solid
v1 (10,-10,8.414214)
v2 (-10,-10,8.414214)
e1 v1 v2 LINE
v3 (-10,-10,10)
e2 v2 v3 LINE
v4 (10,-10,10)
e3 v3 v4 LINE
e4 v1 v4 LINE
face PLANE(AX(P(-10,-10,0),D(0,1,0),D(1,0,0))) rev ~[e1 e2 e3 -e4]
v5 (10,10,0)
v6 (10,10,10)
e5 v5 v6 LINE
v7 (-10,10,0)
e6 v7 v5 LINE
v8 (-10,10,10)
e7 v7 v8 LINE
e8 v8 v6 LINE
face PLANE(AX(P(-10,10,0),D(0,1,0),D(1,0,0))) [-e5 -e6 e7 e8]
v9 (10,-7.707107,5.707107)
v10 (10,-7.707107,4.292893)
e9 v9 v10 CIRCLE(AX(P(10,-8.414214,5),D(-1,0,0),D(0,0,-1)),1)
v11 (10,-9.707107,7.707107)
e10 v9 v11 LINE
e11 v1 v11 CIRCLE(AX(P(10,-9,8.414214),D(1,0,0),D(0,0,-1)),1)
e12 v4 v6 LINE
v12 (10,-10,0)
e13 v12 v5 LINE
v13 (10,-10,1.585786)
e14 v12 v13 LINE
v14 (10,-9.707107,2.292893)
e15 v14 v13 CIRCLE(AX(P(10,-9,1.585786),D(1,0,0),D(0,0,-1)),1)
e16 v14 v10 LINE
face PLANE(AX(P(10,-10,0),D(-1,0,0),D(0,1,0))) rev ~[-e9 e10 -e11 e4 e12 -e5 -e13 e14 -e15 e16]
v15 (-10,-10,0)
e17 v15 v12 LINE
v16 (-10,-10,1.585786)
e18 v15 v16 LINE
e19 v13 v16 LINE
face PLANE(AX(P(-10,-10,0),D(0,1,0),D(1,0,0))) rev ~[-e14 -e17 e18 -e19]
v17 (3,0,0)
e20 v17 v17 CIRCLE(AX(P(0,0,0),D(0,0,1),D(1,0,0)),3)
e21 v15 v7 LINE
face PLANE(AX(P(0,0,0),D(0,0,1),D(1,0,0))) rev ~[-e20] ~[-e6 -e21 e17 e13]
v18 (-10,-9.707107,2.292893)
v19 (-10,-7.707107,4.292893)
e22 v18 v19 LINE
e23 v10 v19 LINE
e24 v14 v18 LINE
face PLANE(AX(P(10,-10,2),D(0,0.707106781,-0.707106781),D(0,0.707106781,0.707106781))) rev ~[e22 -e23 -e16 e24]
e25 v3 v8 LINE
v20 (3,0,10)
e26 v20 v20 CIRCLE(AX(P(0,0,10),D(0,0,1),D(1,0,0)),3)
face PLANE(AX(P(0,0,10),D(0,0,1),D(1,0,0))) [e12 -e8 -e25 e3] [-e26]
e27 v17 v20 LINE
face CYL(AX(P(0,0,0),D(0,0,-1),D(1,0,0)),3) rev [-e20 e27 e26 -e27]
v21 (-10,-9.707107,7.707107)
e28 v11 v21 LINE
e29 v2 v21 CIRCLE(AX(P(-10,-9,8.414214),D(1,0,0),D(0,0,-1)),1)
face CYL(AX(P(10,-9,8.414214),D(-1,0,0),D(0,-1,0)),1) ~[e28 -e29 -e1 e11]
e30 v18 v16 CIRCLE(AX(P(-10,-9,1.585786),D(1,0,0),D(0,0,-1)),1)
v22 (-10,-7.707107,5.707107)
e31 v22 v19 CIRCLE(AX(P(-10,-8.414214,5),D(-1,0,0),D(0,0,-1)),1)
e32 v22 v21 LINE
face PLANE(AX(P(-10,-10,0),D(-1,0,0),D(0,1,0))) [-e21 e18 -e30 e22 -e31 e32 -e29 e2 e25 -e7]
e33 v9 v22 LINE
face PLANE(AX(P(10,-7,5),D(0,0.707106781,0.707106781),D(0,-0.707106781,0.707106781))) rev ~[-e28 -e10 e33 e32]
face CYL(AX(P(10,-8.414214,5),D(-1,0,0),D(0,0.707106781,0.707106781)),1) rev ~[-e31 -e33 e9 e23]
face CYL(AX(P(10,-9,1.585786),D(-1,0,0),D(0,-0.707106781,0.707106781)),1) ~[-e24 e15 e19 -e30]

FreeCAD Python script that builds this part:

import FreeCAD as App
import Part
import Sketcher

V = App.Vector
Q = App.Units.Quantity


def edges_at(feature, points):
    """Names of the edges that pass closest to the given points."""
    edges = feature.Shape.Edges
    near = lambda p: min(range(len(edges)), key=lambda i: edges[i].distToShape(Part.Vertex(*p))[0])
    return sorted({f"Edge{near(p) + 1}" for p in points})


def add_polygon(sketch, points):
    """Adds a closed chain of lines whose ends are joined by coincident constraints."""
    first, n = sketch.GeometryCount, len(points)
    for a, b in zip(points, points[1:] + points[:1]):
        sketch.addGeometry(Part.LineSegment(App.Vector(*a, 0), App.Vector(*b, 0)), False)
    for i in range(n):
        sketch.addConstraint(Sketcher.Constraint("Coincident", first + i, 2, first + (i + 1) % n, 1))

doc = App.newDocument("Part")
body = doc.addObject("PartDesign::Body", "Body")

sketch1 = doc.addObject("Sketcher::SketchObject", "Sketch")
body.addObject(sketch1)
sketch1.AttachmentSupport = (doc.XY_Plane, [""])
sketch1.MapMode = "FlatFace"
add_polygon(sketch1, [(-10, 10), (-10, -10), (10, -10), (10, 10)])
sketch1.addGeometry(Part.Circle(V(0, 0, 0), V(0, 0, 1), 3), False)
sketch1.addConstraint(Sketcher.Constraint("Vertical", 0))
sketch1.addConstraint(Sketcher.Constraint("Horizontal", 1))
sketch1.addConstraint(Sketcher.Constraint("Vertical", 2))
sketch1.addConstraint(Sketcher.Constraint("Horizontal", 3))
sketch1.addConstraint(Sketcher.Constraint("Coincident", 4, 3, -1, 1))
sketch1.addConstraint(Sketcher.Constraint("Symmetric", 0, 2, 2, 2, -1, 1))
sketch1.addConstraint(Sketcher.Constraint("Equal", 3, 0))
sketch1.addConstraint(Sketcher.Constraint("Diameter", 4, Q("6 mm")))
sketch1.addConstraint(Sketcher.Constraint("DistanceX", 1, 1, 1, 2, Q("20 mm")))
pad1 = doc.addObject("PartDesign::Pad", "Pad")
body.addObject(pad1)
pad1.Profile = sketch1
pad1.Length = 10

sketch2 = doc.addObject("Sketcher::SketchObject", "Sketch001")
body.addObject(sketch2)
sketch2.AttachmentSupport = (doc.YZ_Plane, [""])
sketch2.MapMode = "FlatFace"
sketch2.AttachmentOffset = App.Placement(V(0, 0, 10), App.Rotation())
add_polygon(sketch2, [(-7, 5), (-10, 8), (-10, 2)])
sketch2.addConstraint(Sketcher.Constraint("Vertical", 1))
sketch2.addConstraint(Sketcher.Constraint("Perpendicular", 0, 2))
sketch2.addConstraint(Sketcher.Constraint("Equal", 0, 2))
sketch2.addConstraint(Sketcher.Constraint("DistanceY", 1, 2, 1, 1, Q("6 mm")))
sketch2.addConstraint(Sketcher.Constraint("DistanceX", 0, 2, -1, 1, Q("10 mm")))
sketch2.addConstraint(Sketcher.Constraint("DistanceY", -1, 1, 0, 2, Q("8 mm")))
pocket1 = doc.addObject("PartDesign::Pocket", "Pocket")
body.addObject(pocket1)
pocket1.Profile = sketch2
pocket1.Type = "ThroughAll"
doc.recompute()

fillet = doc.addObject("PartDesign::Fillet", "Fillet")
body.addObject(fillet)
fillet.Base = (pocket1, edges_at(pocket1, [(0, -7, 5), (0, -10, 8), (0, -10, 2)]))
fillet.Radius = 1

doc.recompute()
